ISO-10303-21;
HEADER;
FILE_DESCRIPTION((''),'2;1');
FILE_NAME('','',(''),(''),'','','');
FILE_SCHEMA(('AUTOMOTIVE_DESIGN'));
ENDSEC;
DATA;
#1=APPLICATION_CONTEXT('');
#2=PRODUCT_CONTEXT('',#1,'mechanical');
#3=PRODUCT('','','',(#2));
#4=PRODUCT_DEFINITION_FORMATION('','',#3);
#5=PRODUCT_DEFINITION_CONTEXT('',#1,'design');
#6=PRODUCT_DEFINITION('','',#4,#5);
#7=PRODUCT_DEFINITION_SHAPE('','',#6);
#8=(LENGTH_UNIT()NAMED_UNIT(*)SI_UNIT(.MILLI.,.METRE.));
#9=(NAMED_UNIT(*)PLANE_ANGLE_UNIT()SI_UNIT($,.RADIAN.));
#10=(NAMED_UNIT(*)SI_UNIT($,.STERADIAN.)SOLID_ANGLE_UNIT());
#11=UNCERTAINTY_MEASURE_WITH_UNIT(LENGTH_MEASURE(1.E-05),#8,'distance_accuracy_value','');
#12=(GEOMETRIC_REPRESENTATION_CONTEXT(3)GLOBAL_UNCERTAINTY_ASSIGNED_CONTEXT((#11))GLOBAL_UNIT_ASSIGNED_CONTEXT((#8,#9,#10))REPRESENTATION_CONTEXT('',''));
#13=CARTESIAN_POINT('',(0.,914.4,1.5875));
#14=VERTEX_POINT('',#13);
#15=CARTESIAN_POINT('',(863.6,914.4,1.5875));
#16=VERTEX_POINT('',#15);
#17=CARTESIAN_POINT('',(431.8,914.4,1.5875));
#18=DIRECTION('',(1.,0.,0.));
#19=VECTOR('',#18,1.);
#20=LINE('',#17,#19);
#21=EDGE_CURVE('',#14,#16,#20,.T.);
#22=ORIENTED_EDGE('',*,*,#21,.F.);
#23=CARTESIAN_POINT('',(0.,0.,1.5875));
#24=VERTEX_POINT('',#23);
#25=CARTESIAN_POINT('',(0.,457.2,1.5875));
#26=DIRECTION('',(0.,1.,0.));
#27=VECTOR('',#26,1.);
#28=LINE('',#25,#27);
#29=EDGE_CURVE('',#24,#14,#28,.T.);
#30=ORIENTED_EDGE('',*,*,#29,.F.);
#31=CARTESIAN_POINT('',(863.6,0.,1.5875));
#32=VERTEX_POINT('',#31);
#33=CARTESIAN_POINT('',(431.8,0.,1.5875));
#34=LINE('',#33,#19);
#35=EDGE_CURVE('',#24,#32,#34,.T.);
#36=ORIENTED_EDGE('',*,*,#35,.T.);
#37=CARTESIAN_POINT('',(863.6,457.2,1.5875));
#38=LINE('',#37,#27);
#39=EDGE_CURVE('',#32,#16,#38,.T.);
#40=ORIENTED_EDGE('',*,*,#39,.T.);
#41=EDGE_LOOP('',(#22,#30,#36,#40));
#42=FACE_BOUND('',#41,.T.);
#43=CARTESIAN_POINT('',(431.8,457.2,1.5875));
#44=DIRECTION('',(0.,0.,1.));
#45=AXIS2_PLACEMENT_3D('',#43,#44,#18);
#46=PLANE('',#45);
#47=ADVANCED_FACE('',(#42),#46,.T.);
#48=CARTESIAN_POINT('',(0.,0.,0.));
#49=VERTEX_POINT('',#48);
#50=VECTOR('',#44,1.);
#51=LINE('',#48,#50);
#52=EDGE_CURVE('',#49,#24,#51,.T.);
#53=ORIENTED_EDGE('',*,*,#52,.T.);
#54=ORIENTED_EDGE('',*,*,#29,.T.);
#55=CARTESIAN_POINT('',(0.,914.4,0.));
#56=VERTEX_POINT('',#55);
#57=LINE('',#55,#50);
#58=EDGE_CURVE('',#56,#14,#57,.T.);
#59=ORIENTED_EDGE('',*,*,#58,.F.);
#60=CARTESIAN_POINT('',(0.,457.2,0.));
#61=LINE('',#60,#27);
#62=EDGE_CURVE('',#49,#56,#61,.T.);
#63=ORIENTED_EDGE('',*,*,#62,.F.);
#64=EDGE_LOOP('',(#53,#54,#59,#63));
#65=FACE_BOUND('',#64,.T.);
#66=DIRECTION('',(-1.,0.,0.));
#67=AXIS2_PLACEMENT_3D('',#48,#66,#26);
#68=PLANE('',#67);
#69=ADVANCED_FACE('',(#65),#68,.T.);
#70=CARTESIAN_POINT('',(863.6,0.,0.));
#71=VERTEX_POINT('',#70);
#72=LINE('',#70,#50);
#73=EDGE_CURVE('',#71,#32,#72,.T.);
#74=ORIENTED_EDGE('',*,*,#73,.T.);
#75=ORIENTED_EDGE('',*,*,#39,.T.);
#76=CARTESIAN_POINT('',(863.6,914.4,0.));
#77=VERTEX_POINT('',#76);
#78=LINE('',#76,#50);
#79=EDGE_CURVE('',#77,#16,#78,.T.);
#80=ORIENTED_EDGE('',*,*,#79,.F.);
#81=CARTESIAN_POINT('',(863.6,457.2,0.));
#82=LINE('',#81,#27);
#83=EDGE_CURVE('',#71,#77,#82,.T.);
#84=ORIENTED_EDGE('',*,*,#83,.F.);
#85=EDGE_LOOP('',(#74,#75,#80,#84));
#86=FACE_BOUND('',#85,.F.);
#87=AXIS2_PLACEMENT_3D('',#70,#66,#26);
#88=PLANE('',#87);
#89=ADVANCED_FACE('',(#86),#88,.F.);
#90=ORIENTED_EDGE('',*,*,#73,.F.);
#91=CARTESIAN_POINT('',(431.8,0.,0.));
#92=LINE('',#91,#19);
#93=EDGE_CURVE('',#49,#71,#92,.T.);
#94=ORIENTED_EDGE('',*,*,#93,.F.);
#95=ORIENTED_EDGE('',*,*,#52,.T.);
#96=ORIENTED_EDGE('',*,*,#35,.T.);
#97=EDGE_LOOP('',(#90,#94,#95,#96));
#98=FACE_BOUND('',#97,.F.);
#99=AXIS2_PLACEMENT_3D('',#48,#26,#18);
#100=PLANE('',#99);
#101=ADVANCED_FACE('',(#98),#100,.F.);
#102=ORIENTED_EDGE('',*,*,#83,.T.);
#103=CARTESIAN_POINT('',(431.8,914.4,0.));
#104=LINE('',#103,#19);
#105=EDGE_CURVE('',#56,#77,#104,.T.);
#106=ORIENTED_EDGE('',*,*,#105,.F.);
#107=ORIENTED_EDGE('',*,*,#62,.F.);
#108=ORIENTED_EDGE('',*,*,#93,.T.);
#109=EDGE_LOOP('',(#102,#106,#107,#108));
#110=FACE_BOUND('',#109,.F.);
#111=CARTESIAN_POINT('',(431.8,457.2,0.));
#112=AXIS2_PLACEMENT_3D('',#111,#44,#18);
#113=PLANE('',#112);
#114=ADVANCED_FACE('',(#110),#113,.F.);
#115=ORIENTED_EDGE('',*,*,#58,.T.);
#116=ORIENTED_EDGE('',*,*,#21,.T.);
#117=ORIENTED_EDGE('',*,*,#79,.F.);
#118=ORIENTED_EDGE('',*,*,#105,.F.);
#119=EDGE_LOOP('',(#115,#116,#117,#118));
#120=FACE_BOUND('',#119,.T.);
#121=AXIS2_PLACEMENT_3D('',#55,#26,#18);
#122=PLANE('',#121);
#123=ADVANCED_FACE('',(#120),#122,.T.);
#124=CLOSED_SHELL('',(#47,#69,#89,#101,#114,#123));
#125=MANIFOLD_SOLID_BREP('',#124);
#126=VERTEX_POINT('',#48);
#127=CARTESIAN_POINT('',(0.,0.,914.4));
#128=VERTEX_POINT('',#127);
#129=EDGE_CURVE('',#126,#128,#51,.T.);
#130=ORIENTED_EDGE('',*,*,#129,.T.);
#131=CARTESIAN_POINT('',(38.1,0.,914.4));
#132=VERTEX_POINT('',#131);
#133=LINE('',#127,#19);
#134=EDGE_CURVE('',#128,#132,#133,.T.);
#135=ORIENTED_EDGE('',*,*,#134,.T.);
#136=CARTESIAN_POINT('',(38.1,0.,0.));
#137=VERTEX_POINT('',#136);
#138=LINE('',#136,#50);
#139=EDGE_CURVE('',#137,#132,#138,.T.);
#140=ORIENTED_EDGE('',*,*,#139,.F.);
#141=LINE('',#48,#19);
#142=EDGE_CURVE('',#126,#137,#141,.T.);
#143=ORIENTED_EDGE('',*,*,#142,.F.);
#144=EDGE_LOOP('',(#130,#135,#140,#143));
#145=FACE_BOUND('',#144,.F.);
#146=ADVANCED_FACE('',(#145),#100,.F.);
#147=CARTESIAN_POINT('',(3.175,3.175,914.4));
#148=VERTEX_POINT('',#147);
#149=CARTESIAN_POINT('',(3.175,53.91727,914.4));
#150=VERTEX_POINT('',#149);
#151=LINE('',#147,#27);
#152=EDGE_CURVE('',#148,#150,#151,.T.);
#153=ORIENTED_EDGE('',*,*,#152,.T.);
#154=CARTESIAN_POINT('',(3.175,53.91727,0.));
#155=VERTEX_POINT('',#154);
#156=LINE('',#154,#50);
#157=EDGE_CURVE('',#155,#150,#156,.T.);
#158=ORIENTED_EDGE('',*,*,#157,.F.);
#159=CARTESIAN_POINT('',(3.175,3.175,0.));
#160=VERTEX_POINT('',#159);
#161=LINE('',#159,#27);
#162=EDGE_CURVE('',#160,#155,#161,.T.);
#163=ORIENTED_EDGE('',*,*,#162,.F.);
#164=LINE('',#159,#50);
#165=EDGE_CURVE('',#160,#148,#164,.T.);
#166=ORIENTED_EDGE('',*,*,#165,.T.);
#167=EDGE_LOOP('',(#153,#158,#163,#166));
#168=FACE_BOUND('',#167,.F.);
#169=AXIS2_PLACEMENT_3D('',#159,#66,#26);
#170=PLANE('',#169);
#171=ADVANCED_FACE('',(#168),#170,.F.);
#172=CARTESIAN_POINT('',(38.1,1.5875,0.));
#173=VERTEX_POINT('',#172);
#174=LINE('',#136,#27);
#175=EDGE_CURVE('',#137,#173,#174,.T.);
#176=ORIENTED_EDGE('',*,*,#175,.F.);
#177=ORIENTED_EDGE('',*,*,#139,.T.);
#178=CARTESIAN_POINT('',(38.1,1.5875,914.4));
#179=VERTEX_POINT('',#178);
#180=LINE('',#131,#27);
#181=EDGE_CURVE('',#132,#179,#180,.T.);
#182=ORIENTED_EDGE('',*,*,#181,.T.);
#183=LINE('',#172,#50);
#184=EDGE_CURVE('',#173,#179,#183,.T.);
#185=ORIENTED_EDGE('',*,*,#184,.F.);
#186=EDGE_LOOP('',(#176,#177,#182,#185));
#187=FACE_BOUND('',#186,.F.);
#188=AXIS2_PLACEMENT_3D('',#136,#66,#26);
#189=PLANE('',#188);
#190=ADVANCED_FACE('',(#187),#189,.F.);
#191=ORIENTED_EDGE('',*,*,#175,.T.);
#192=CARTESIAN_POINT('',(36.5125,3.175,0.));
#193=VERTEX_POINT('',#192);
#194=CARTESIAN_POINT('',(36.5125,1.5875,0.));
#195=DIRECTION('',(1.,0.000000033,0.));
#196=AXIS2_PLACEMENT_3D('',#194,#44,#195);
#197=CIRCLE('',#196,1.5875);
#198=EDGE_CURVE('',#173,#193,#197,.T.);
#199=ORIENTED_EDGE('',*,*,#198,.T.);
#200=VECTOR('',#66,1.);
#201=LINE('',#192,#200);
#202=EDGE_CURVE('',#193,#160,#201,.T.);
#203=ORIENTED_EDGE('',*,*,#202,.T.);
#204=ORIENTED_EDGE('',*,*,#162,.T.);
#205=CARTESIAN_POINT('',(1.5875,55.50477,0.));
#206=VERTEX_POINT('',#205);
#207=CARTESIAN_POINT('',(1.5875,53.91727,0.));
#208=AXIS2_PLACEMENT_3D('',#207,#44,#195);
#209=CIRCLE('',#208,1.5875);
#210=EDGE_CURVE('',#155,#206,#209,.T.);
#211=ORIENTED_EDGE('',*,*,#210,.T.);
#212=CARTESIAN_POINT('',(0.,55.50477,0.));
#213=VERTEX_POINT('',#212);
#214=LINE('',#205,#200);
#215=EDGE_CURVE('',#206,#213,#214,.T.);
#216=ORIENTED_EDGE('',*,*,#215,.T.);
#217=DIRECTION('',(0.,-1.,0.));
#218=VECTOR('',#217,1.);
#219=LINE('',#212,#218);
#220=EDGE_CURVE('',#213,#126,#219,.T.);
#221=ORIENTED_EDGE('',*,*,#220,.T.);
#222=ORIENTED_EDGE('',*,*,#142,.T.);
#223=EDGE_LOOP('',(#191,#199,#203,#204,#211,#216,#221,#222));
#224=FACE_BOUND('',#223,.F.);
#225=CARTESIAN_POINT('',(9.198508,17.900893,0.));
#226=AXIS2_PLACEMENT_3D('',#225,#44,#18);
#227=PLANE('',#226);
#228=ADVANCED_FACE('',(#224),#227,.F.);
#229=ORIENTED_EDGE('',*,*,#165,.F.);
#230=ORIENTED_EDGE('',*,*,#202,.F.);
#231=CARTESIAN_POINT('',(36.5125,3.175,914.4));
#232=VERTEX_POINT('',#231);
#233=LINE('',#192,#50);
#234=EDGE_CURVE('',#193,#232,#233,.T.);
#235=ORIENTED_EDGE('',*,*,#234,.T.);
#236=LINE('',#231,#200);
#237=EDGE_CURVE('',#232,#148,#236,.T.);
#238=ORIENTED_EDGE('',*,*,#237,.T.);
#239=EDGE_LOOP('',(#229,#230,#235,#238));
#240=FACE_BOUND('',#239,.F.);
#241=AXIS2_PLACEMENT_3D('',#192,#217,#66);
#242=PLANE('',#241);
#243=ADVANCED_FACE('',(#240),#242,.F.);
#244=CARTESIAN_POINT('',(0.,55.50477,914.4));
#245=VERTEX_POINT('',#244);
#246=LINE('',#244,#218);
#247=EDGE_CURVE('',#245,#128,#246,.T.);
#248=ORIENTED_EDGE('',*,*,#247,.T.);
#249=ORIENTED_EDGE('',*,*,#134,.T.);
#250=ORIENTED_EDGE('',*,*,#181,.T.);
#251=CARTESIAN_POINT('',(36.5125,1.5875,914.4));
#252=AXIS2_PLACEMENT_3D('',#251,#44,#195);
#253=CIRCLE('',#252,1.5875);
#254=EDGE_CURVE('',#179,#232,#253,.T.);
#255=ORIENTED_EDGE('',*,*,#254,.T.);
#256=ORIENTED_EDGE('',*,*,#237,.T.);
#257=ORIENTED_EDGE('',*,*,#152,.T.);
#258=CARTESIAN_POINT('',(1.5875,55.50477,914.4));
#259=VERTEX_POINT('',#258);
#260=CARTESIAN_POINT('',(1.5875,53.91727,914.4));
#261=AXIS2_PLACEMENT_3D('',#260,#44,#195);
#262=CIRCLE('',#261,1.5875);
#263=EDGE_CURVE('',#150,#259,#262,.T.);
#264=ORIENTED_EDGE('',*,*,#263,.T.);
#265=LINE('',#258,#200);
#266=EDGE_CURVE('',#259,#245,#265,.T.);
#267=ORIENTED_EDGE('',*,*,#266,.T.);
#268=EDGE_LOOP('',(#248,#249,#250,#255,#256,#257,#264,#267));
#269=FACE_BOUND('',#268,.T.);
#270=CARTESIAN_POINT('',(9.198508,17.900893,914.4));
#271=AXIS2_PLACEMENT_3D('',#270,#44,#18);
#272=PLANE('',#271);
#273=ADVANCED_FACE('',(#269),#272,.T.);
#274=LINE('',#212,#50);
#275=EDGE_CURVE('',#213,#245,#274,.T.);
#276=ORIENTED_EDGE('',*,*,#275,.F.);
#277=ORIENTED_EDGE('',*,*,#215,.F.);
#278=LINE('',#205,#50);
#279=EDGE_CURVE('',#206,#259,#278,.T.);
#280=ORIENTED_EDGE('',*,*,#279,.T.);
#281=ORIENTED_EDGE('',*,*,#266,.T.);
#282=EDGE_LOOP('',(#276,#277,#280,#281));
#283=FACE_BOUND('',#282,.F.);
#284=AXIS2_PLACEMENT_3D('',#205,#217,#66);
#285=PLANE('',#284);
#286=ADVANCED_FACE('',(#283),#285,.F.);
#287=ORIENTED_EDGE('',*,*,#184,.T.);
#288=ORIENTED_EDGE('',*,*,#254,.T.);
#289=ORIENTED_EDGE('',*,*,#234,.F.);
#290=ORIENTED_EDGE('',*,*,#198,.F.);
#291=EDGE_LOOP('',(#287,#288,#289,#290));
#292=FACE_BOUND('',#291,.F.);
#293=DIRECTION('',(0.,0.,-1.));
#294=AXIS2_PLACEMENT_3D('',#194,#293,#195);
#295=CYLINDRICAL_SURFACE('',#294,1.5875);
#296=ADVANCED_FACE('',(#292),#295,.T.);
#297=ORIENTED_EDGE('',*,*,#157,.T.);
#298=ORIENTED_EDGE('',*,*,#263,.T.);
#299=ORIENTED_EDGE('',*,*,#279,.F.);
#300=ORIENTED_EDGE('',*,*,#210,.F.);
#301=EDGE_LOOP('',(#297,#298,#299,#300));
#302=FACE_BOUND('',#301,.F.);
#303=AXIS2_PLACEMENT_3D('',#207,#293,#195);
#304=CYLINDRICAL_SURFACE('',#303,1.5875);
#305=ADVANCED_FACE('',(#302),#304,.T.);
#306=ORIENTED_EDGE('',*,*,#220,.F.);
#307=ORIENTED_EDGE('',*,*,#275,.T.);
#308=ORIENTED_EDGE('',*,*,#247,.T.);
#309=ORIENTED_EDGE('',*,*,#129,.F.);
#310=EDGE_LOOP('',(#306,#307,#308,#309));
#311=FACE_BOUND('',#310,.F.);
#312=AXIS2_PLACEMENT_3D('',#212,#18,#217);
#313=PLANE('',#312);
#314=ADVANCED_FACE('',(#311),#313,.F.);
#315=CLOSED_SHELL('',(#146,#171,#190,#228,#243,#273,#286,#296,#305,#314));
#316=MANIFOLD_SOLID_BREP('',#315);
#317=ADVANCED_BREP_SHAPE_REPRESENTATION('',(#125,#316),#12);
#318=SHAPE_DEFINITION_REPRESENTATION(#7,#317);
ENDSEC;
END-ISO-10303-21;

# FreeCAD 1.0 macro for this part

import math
import FreeCAD as App
import Part
import Sketcher

V = App.Vector
Q = App.Units.Quantity

doc = App.newDocument("Part")
body = doc.addObject("PartDesign::Body", "Body")

sketch1 = doc.addObject("Sketcher::SketchObject", "Sketch")
body.addObject(sketch1)
sketch1.AttachmentSupport = (doc.XY_Plane, [""])
sketch1.MapMode = "FlatFace"
sketch1.addGeometry([
    Part.LineSegment(V(0, 55.50477, 0), V(0, 0, 0)),
    Part.LineSegment(V(0, 0, 0), V(38.1, 0, 0)),
    Part.LineSegment(V(38.1, 0, 0), V(38.1, 1.5875, 0)),
    Part.ArcOfCircle(Part.Circle(V(36.5125, 1.5875, 0), V(0, 0, 1), 1.5875), math.radians(0.000002), math.radians(89.999998)),
    Part.LineSegment(V(36.5125, 3.175, 0), V(3.175, 3.175, 0)),
    Part.LineSegment(V(3.175, 3.175, 0), V(3.175, 53.91727, 0)),
    Part.ArcOfCircle(Part.Circle(V(1.5875, 53.91727, 0), V(0, 0, 1), 1.5875), math.radians(0.000002), math.radians(89.999998)),
    Part.LineSegment(V(1.5875, 55.50477, 0), V(0, 55.50477, 0)),
], False)
sketch1.addConstraint([
    Sketcher.Constraint("Coincident", 0, 2, 1, 1),
    Sketcher.Constraint("Coincident", 1, 2, 2, 1),
    Sketcher.Constraint("Tangent", 2, 2, 3, 1),
    Sketcher.Constraint("Tangent", 3, 2, 4, 1),
    Sketcher.Constraint("Coincident", 4, 2, 5, 1),
    Sketcher.Constraint("Tangent", 5, 2, 6, 1),
    Sketcher.Constraint("Tangent", 6, 2, 7, 1),
    Sketcher.Constraint("Coincident", 7, 2, 0, 1),
    Sketcher.Constraint("Vertical", 0),
    Sketcher.Constraint("Horizontal", 1),
    Sketcher.Constraint("Vertical", 2),
    Sketcher.Constraint("Horizontal", 4),
    Sketcher.Constraint("Vertical", 5),
    Sketcher.Constraint("Horizontal", 7),
    Sketcher.Constraint("Coincident", 0, 2, -1, 1),
    Sketcher.Constraint("Equal", 3, 6),
    Sketcher.Constraint("Equal", 7, 2),
    Sketcher.Constraint("DistanceX", 1, 1, 1, 2, Q("1.5 in")),
    Sketcher.Constraint("Radius", 3, Q("0.0625 in")),
    Sketcher.Constraint("DistanceX", 4, 2, 4, 1, Q("1.3125 in")),
    Sketcher.Constraint("DistanceY", 0, 2, 0, 1, 55.50477),
])
pad1 = doc.addObject("PartDesign::Pad", "Pad")
body.addObject(pad1)
pad1.Profile = sketch1
pad1.Length = Q("36 in")
body2 = doc.addObject("PartDesign::Body", "Body001")

sketch2 = doc.addObject("Sketcher::SketchObject", "Sketch001")
body2.addObject(sketch2)
sketch2.AttachmentSupport = (doc.getObject("XY_Plane001"), [""])
sketch2.MapMode = "FlatFace"
sketch2.addGeometry([
    Part.LineSegment(V(0, 914.4, 0), V(0, 0, 0)),
    Part.LineSegment(V(0, 0, 0), V(863.6, 0, 0)),
    Part.LineSegment(V(863.6, 0, 0), V(863.6, 914.4, 0)),
    Part.LineSegment(V(863.6, 914.4, 0), V(0, 914.4, 0)),
], False)
sketch2.addConstraint([
    Sketcher.Constraint("Coincident", 0, 2, 1, 1),
    Sketcher.Constraint("Coincident", 1, 2, 2, 1),
    Sketcher.Constraint("Coincident", 2, 2, 3, 1),
    Sketcher.Constraint("Coincident", 3, 2, 0, 1),
    Sketcher.Constraint("Vertical", 0),
    Sketcher.Constraint("Horizontal", 1),
    Sketcher.Constraint("Vertical", 2),
    Sketcher.Constraint("Horizontal", 3),
    Sketcher.Constraint("Coincident", 0, 2, -1, 1),
    Sketcher.Constraint("DistanceX", 1, 1, 1, 2, Q("34 in")),
    Sketcher.Constraint("DistanceY", 0, 2, 0, 1, Q("36 in")),
])
pad2 = doc.addObject("PartDesign::Pad", "Pad001")
body2.addObject(pad2)
pad2.Profile = sketch2
pad2.Length = Q("0.0625 in")

doc.recompute()
